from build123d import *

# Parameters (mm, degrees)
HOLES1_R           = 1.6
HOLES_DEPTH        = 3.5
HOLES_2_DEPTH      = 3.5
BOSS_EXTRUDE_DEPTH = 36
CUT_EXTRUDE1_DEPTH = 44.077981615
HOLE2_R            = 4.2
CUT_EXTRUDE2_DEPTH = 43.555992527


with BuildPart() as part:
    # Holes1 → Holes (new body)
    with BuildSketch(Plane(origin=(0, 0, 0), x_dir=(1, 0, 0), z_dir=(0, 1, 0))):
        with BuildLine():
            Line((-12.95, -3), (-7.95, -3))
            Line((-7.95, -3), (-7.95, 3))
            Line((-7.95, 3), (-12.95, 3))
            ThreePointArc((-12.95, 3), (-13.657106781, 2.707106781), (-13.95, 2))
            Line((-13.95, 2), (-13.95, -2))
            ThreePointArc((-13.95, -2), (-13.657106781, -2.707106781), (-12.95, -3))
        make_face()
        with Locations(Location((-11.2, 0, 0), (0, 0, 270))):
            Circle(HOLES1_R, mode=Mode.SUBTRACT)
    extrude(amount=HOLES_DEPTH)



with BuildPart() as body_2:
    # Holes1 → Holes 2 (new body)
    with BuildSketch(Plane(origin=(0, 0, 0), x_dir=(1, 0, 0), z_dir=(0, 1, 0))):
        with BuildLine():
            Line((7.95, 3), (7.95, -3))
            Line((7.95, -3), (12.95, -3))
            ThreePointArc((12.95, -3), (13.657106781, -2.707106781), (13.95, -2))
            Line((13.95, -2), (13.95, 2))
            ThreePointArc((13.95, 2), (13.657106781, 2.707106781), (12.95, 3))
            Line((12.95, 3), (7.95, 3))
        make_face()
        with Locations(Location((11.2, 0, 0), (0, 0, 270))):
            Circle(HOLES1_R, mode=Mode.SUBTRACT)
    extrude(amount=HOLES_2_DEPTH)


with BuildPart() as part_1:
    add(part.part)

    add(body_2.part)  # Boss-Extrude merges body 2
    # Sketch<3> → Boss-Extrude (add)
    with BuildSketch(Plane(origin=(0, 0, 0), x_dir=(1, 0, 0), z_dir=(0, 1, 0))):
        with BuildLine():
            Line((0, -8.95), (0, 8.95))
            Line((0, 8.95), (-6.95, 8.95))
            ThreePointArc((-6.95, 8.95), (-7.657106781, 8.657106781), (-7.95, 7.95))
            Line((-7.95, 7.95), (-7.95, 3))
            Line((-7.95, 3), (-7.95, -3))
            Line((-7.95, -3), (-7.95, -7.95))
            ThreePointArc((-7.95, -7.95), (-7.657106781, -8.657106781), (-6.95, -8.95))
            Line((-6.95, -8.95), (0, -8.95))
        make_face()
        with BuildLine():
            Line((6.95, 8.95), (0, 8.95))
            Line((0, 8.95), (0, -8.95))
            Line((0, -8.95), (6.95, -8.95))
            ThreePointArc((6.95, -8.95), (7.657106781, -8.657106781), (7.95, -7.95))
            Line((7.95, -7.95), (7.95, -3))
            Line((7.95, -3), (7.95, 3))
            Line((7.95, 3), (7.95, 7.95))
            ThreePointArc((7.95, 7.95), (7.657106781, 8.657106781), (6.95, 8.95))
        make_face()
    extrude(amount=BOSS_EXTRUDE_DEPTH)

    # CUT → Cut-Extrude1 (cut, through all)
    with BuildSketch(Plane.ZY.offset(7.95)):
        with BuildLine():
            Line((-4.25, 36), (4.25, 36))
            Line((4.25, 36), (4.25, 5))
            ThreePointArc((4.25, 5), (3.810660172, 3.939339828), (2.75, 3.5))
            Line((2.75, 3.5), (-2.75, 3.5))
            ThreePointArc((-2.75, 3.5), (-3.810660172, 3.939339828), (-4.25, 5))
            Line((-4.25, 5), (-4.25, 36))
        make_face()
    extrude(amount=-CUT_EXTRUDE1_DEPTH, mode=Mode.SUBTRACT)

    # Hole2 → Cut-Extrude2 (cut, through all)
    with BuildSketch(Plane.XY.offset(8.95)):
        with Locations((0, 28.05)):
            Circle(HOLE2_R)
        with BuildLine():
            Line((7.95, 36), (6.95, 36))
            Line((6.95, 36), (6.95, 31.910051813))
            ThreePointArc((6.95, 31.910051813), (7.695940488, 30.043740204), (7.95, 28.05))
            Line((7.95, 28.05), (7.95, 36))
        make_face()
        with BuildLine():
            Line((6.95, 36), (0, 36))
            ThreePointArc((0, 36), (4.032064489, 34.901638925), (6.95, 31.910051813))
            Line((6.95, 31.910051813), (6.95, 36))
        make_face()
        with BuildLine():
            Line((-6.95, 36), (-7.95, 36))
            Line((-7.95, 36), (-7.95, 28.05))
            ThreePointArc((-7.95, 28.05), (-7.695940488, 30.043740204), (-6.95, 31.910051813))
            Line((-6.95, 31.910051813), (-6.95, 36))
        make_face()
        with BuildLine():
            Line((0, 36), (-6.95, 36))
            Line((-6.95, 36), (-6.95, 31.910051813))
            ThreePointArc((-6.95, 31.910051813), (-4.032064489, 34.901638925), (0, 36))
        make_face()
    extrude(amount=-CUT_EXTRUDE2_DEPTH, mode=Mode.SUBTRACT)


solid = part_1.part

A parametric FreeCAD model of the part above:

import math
import FreeCAD as App
import Part
import Sketcher

V = App.Vector

doc = App.newDocument("Part")
body = doc.addObject("PartDesign::Body", "Body")

sketch1 = doc.addObject("Sketcher::SketchObject", "Sketch")
body.addObject(sketch1)
sketch1.AttachmentSupport = (doc.XZ_Plane, [""])
sketch1.MapMode = "FlatFace"
sketch1.addGeometry([
    Part.LineSegment(V(-12.9, 3, 0), V(-8, 3, 0)),
    Part.LineSegment(V(-8, 3, 0), V(-8, -3, 0)),
    Part.LineSegment(V(-8, -3, 0), V(-12.9, -3, 0)),
    Part.ArcOfCircle(Part.Circle(V(-12.9, -2, 0), V(0, 0, 1), 1), math.radians(-180), math.radians(-90)),
    Part.LineSegment(V(-13.9, -2, 0), V(-13.9, 2, 0)),
    Part.ArcOfCircle(Part.Circle(V(-12.9, 2, 0), V(0, 0, 1), 1), math.radians(90), math.radians(180)),
    Part.Circle(V(-11.2, 0, 0), V(0, 0, 1), 1.6),
], False)
sketch1.addConstraint([
    Sketcher.Constraint("Coincident", 0, 2, 1, 1),
    Sketcher.Constraint("Coincident", 1, 2, 2, 1),
    Sketcher.Constraint("Tangent", 2, 2, 3, 2),
    Sketcher.Constraint("Tangent", 3, 1, 4, 1),
    Sketcher.Constraint("Tangent", 4, 2, 5, 2),
    Sketcher.Constraint("Tangent", 5, 1, 0, 1),
    Sketcher.Constraint("Horizontal", 0),
    Sketcher.Constraint("Vertical", 1),
    Sketcher.Constraint("Horizontal", 2),
    Sketcher.Constraint("Vertical", 4),
    Sketcher.Constraint("Equal", 3, 5),
    Sketcher.Constraint("PointOnObject", 6, 3, -1),
    Sketcher.Constraint("Radius", 3, 1.0),
    Sketcher.Constraint("Diameter", 6, 3.2),
    Sketcher.Constraint("DistanceX", 0, 1, 0, 2, 5.0),
    Sketcher.Constraint("DistanceY", 1, 2, 1, 1, 6.0),
    Sketcher.Constraint("DistanceY", 3, 3, -1, 1, 2.0),
    Sketcher.Constraint("DistanceX", 6, 3, -1, 1, 11.2),
    Sketcher.Constraint("DistanceX", 3, 3, -1, 1, 12.95),
])
pad1 = doc.addObject("PartDesign::Pad", "Pad")
body.addObject(pad1)
pad1.Profile = sketch1
pad1.Length = 3.5
pad1.Reversed = True
body2 = doc.addObject("PartDesign::Body", "Body001")

sketch2 = doc.addObject("Sketcher::SketchObject", "Sketch001")
body2.addObject(sketch2)
sketch2.AttachmentSupport = (doc.getObject("XZ_Plane001"), [""])
sketch2.MapMode = "FlatFace"
sketch2.addGeometry([
    Part.LineSegment(V(8, -3, 0), V(8, 3, 0)),
    Part.LineSegment(V(8, 3, 0), V(12.9, 3, 0)),
    Part.ArcOfCircle(Part.Circle(V(12.9, 2, 0), V(0, 0, 1), 1), math.radians(0), math.radians(90)),
    Part.LineSegment(V(13.9, 2, 0), V(13.9, -2, 0)),
    Part.ArcOfCircle(Part.Circle(V(12.9, -2, 0), V(0, 0, 1), 1), math.radians(-90), math.radians(0)),
    Part.LineSegment(V(12.9, -3, 0), V(8, -3, 0)),
    Part.Circle(V(11.2, 0, 0), V(0, 0, 1), 1.6),
], False)
sketch2.addConstraint([
    Sketcher.Constraint("Coincident", 0, 2, 1, 1),
    Sketcher.Constraint("Tangent", 1, 2, 2, 2),
    Sketcher.Constraint("Tangent", 2, 1, 3, 1),
    Sketcher.Constraint("Tangent", 3, 2, 4, 2),
    Sketcher.Constraint("Tangent", 4, 1, 5, 1),
    Sketcher.Constraint("Coincident", 5, 2, 0, 1),
    Sketcher.Constraint("Vertical", 0),
    Sketcher.Constraint("Horizontal", 1),
    Sketcher.Constraint("Vertical", 3),
    Sketcher.Constraint("Horizontal", 5),
    Sketcher.Constraint("Equal", 2, 4),
    Sketcher.Constraint("PointOnObject", 6, 3, -1),
    Sketcher.Constraint("Radius", 2, 1.0),
    Sketcher.Constraint("Diameter", 6, 3.2),
    Sketcher.Constraint("DistanceX", 1, 1, 1, 2, 5.0),
    Sketcher.Constraint("DistanceY", 0, 1, 0, 2, 6.0),
    Sketcher.Constraint("DistanceY", -1, 1, 2, 3, 2.0),
    Sketcher.Constraint("DistanceX", -1, 1, 6, 3, 11.2),
    Sketcher.Constraint("DistanceX", -1, 1, 2, 3, 12.95),
])
pad2 = doc.addObject("PartDesign::Pad", "Pad001")
body2.addObject(pad2)
pad2.Profile = sketch2
pad2.Length = 3.5
pad2.Reversed = True
body.AllowCompound = True
doc.recompute()

boolean = doc.addObject("PartDesign::Boolean", "Boolean")
body.addObject(boolean)
boolean.Type = "Fuse"
boolean.addObjects([body2])

sketch3 = doc.addObject("Sketcher::SketchObject", "Sketch002")
body.addObject(sketch3)
sketch3.AttachmentSupport = (doc.XZ_Plane, [""])
sketch3.MapMode = "FlatFace"
sketch3.addGeometry([
    Part.ArcOfCircle(Part.Circle(V(-6.9, -7.9, 0), V(0, 0, 1), 1), math.radians(-180), math.radians(-90)),
    Part.LineSegment(V(-8, -8, 0), V(-8, 8, 0)),
    Part.ArcOfCircle(Part.Circle(V(-6.9, 7.9, 0), V(0, 0, 1), 1), math.radians(90), math.radians(180)),
    Part.LineSegment(V(-7, 8.9, 0), V(7, 8.9, 0)),
    Part.ArcOfCircle(Part.Circle(V(6.9, 7.9, 0), V(0, 0, 1), 1), math.radians(0), math.radians(90)),
    Part.LineSegment(V(8, 8, 0), V(8, -8, 0)),
    Part.ArcOfCircle(Part.Circle(V(6.9, -7.9, 0), V(0, 0, 1), 1), math.radians(-90), math.radians(0)),
    Part.LineSegment(V(7, -8.9, 0), V(-7, -8.9, 0)),
], False)
sketch3.addConstraint([
    Sketcher.Constraint("Tangent", 0, 1, 1, 1),
    Sketcher.Constraint("Tangent", 1, 2, 2, 2),
    Sketcher.Constraint("Tangent", 2, 1, 3, 1),
    Sketcher.Constraint("Tangent", 3, 2, 4, 2),
    Sketcher.Constraint("Tangent", 4, 1, 5, 1),
    Sketcher.Constraint("Tangent", 5, 2, 6, 2),
    Sketcher.Constraint("Tangent", 6, 1, 7, 1),
    Sketcher.Constraint("Tangent", 7, 2, 0, 2),
    Sketcher.Constraint("Vertical", 1),
    Sketcher.Constraint("Horizontal", 3),
    Sketcher.Constraint("Vertical", 5),
    Sketcher.Constraint("Horizontal", 7),
    Sketcher.Constraint("Equal", 0, 2),
    Sketcher.Constraint("Equal", 2, 4),
    Sketcher.Constraint("Equal", 4, 6),
    Sketcher.Constraint("Symmetric", 0, 3, 4, 3, -1, 1),
    Sketcher.Constraint("Radius", 0, 1.0),
    Sketcher.Constraint("DistanceX", 3, 1, 3, 2, 13.9),
    Sketcher.Constraint("DistanceY", 1, 1, 1, 2, 15.9),
])
pad3 = doc.addObject("PartDesign::Pad", "Pad002")
body.addObject(pad3)
pad3.Profile = sketch3
pad3.Length = 36
pad3.Reversed = True

sketch4 = doc.addObject("Sketcher::SketchObject", "Sketch003")
body.addObject(sketch4)
sketch4.AttachmentSupport = (doc.YZ_Plane, [""])
sketch4.MapMode = "FlatFace"
sketch4.AttachmentOffset = App.Placement(V(0, 0, -7.95), App.Rotation())
sketch4.addGeometry([
    Part.LineSegment(V(36, 4.2, 0), V(36, -4.2, 0)),
    Part.LineSegment(V(36, -4.2, 0), V(5, -4.2, 0)),
    Part.ArcOfCircle(Part.Circle(V(5, -2.8, 0), V(0, 0, 1), 1.5), math.radians(180), math.radians(270)),
    Part.LineSegment(V(3.5, -2.8, 0), V(3.5, 2.8, 0)),
    Part.ArcOfCircle(Part.Circle(V(5, 2.8, 0), V(0, 0, 1), 1.5), math.radians(90), math.radians(180)),
    Part.LineSegment(V(5, 4.2, 0), V(36, 4.2, 0)),
], False)
sketch4.addConstraint([
    Sketcher.Constraint("Coincident", 0, 2, 1, 1),
    Sketcher.Constraint("Tangent", 1, 2, 2, 2),
    Sketcher.Constraint("Tangent", 2, 1, 3, 1),
    Sketcher.Constraint("Tangent", 3, 2, 4, 2),
    Sketcher.Constraint("Tangent", 4, 1, 5, 1),
    Sketcher.Constraint("Coincident", 5, 2, 0, 1),
    Sketcher.Constraint("Vertical", 0),
    Sketcher.Constraint("Horizontal", 1),
    Sketcher.Constraint("Vertical", 3),
    Sketcher.Constraint("Horizontal", 5),
    Sketcher.Constraint("Equal", 2, 4),
    Sketcher.Constraint("Radius", 2, 1.5),
    Sketcher.Constraint("DistanceX", 1, 2, 1, 1, 31.0),
    Sketcher.Constraint("DistanceY", 0, 2, 0, 1, 8.5),
    Sketcher.Constraint("DistanceX", -1, 1, 2, 3, 5.0),
    Sketcher.Constraint("DistanceY", 2, 3, -1, 1, 2.75),
])
pocket1 = doc.addObject("PartDesign::Pocket", "Pocket")
body.addObject(pocket1)
pocket1.Profile = sketch4
pocket1.Type = "ThroughAll"
pocket1.Reversed = True

sketch5 = doc.addObject("Sketcher::SketchObject", "Sketch004")
body.addObject(sketch5)
sketch5.AttachmentSupport = (doc.XY_Plane, [""])
sketch5.MapMode = "FlatFace"
sketch5.AttachmentOffset = App.Placement(V(0, 0, 8.95), App.Rotation())
sketch5.addGeometry([
    Part.Circle(V(0, 28.1, 0), V(0, 0, 1), 4.2),
    Part.LineSegment(V(8, 36, 0), V(0, 36, 0)),
    Part.ArcOfCircle(Part.Circle(V(0, 28.1, 0), V(0, 0, 1), 7.9), math.radians(29), math.radians(90)),
    Part.ArcOfCircle(Part.Circle(V(0, 28, 0), V(0, 0, 1), 8), math.radians(0), math.radians(29)),
    Part.LineSegment(V(8, 28.1, 0), V(8, 36, 0)),
    Part.LineSegment(V(-8, 36, 0), V(-8, 28.1, 0)),
    Part.ArcOfCircle(Part.Circle(V(0, 28, 0), V(0, 0, 1), 8), math.radians(151), math.radians(180)),
    Part.ArcOfCircle(Part.Circle(V(0, 28.1, 0), V(0, 0, 1), 7.9), math.radians(90), math.radians(151)),
    Part.LineSegment(V(0, 36, 0), V(-8, 36, 0)),
], False)
sketch5.addConstraint([
    Sketcher.Constraint("Tangent", 1, 2, 2, 2),
    Sketcher.Constraint("Tangent", 2, 1, 3, 2),
    Sketcher.Constraint("Tangent", 3, 1, 4, 1),
    Sketcher.Constraint("Coincident", 4, 2, 1, 1),
    Sketcher.Constraint("Tangent", 5, 2, 6, 2),
    Sketcher.Constraint("Tangent", 6, 1, 7, 2),
    Sketcher.Constraint("Tangent", 7, 1, 8, 1),
    Sketcher.Constraint("Coincident", 8, 2, 5, 1),
    Sketcher.Constraint("Horizontal", 1),
    Sketcher.Constraint("Vertical", 4),
    Sketcher.Constraint("Vertical", 5),
    Sketcher.Constraint("Horizontal", 8),
    Sketcher.Constraint("Coincident", 2, 3, 0, 3),
    Sketcher.Constraint("Coincident", 6, 3, 0, 3),
    Sketcher.Constraint("Coincident", 7, 1, 1, 2),
    Sketcher.Constraint("Equal", 2, 3),
    Sketcher.Constraint("Symmetric", 2, 1, 6, 1, -2),
    Sketcher.Constraint("Diameter", 0, 8.4),
    Sketcher.Constraint("Radius", 2, 7.95),
    Sketcher.Constraint("DistanceY", -1, 1, 1, 2, 36.0),
    Sketcher.Constraint("DistanceX", 2, 1, 3, 1, 1.0),
])
pocket2 = doc.addObject("PartDesign::Pocket", "Pocket001")
body.addObject(pocket2)
pocket2.Profile = sketch5
pocket2.Type = "ThroughAll"

doc.recompute()
